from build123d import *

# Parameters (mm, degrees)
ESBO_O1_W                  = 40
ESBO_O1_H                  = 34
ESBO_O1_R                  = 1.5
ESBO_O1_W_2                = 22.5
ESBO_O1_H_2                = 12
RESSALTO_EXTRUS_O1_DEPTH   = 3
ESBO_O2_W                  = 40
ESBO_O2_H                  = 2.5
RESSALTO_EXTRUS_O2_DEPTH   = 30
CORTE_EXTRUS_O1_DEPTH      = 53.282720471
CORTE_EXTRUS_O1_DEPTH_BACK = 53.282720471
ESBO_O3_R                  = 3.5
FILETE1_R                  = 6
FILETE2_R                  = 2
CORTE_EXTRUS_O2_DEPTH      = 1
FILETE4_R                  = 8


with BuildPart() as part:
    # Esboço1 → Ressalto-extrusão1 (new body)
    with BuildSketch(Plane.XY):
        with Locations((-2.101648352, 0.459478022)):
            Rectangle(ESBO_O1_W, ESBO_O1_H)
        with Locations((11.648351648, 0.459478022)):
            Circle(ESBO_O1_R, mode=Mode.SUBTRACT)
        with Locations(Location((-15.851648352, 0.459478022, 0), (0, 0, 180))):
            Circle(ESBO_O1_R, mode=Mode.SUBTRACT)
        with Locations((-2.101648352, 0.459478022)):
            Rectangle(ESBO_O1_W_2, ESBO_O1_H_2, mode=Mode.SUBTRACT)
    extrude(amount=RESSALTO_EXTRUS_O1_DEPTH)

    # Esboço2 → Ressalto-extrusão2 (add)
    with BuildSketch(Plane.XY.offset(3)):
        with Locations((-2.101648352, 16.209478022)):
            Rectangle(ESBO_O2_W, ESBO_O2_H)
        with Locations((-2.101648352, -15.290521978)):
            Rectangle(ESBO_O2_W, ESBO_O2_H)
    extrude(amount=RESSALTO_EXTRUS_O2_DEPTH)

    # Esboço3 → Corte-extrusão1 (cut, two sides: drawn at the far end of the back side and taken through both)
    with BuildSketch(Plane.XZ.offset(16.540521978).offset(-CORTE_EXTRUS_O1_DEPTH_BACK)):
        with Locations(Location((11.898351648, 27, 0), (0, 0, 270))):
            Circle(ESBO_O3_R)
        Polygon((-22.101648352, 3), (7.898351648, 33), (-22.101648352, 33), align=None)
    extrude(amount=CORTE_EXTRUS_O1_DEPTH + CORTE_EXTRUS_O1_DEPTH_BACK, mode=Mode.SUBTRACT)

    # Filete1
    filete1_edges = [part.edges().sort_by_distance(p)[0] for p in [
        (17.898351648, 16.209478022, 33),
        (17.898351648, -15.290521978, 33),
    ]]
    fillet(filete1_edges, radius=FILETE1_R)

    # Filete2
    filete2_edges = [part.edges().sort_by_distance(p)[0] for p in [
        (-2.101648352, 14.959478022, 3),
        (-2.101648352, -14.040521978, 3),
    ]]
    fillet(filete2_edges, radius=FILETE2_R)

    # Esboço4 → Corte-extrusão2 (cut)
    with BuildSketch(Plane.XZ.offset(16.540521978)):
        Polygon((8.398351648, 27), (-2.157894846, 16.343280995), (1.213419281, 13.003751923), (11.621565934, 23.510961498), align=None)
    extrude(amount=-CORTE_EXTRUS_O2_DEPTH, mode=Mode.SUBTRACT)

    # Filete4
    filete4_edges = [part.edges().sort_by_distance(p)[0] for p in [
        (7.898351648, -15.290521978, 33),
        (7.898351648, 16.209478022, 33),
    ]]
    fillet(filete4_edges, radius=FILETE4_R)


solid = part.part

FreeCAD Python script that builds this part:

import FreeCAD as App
import Part
import Sketcher


def edges_at(feature, points):
    """Names of the edges that pass closest to the given points."""
    edges = feature.Shape.Edges
    near = lambda p: min(range(len(edges)), key=lambda i: edges[i].distToShape(Part.Vertex(*p))[0])
    return sorted({f"Edge{near(p) + 1}" for p in points})

doc = App.newDocument("Part")
params = doc.addObject("Spreadsheet::Sheet", "Params")
for row, (alias, value) in enumerate([
    ("sketch1_diameter", "3 mm"),
    ("sketch1_width", "40 mm"),
    ("sketch1_height", "34 mm"),
    ("sketch1_height2", "12 mm"),
    ("sketch1_width2", "22.5 mm"),
    ("pad1_length", "3 mm"),
    ("sketch2_width", "40 mm"),
    ("sketch2_height", "2.5 mm"),
    ("pad2_length", "30 mm"),
    ("sketch3_diameter", "7 mm"),
    ("sketch3_width", "30 mm"),
    ("fillet_radius", "6 mm"),
    ("fillet2_radius", "2 mm"),
    ("sketch4_length", "15 mm"),
    ("sketch4_length2", "4.75 mm"),
    ("pocket2_length", "1 mm"),
    ("fillet3_radius", "8 mm"),
], start=1):
    params.set(f"A{row}", alias)
    params.set(f"B{row}", "=" + value)
    params.setAlias(f"B{row}", alias)

body = doc.addObject("PartDesign::Body", "Body")

sketch1 = body.newObject("Sketcher::SketchObject", "Sketch")
sketch1.AttachmentSupport = (doc.getObject("XY_Plane"), [""])
sketch1.MapMode = "FlatFace"
sketch1.addGeometry([
    Part.LineSegment(App.Vector(-22.101648, 17.459478, 0), App.Vector(-22.101648, -16.540522, 0)),
    Part.LineSegment(App.Vector(-22.101648, -16.540522, 0), App.Vector(17.898352, -16.540522, 0)),
    Part.LineSegment(App.Vector(17.898352, -16.540522, 0), App.Vector(17.898352, 17.459478, 0)),
    Part.LineSegment(App.Vector(17.898352, 17.459478, 0), App.Vector(-22.101648, 17.459478, 0)),
    Part.Circle(App.Vector(-15.851648, 0.459478, 0), App.Vector(0, 0, 1), 1.5),
    Part.LineSegment(App.Vector(9.148352, -5.540522, 0), App.Vector(-13.351648, -5.540522, 0)),
    Part.LineSegment(App.Vector(-13.351648, -5.540522, 0), App.Vector(-13.351648, 6.459478, 0)),
    Part.LineSegment(App.Vector(-13.351648, 6.459478, 0), App.Vector(9.148352, 6.459478, 0)),
    Part.LineSegment(App.Vector(9.148352, 6.459478, 0), App.Vector(9.148352, -5.540522, 0)),
    Part.Circle(App.Vector(11.648352, 0.459478, 0), App.Vector(0, 0, 1), 1.5),
], False)
sketch1.addConstraint([
    Sketcher.Constraint("Coincident", 0, 2, 1, 1),
    Sketcher.Constraint("Coincident", 1, 2, 2, 1),
    Sketcher.Constraint("Coincident", 2, 2, 3, 1),
    Sketcher.Constraint("Coincident", 3, 2, 0, 1),
    Sketcher.Constraint("Coincident", 5, 2, 6, 1),
    Sketcher.Constraint("Coincident", 6, 2, 7, 1),
    Sketcher.Constraint("Coincident", 7, 2, 8, 1),
    Sketcher.Constraint("Coincident", 8, 2, 5, 1),
    Sketcher.Constraint("Vertical", 0),
    Sketcher.Constraint("Horizontal", 1),
    Sketcher.Constraint("Vertical", 2),
    Sketcher.Constraint("Horizontal", 3),
    Sketcher.Constraint("Horizontal", 5),
    Sketcher.Constraint("Vertical", 6),
    Sketcher.Constraint("Horizontal", 7),
    Sketcher.Constraint("Vertical", 8),
    Sketcher.Constraint("Equal", 4, 9),
    Sketcher.Constraint("Horizontal", 4, 3, 9, 3),
    Sketcher.Constraint("Diameter", 4, 3.0),
    Sketcher.Constraint("DistanceX", 1, 1, 1, 2, 40.0),
    Sketcher.Constraint("DistanceY", 0, 2, 0, 1, 34.0),
    Sketcher.Constraint("DistanceY", 6, 1, 6, 2, 12.0),
    Sketcher.Constraint("DistanceX", 5, 2, 5, 1, 22.5),
    Sketcher.Constraint("DistanceY", 0, 2, 4, 3, 17.0),
    Sketcher.Constraint("DistanceY", 5, 2, 4, 3, 6.0),
    Sketcher.Constraint("DistanceX", 5, 2, 9, 3, 25.0),
    Sketcher.Constraint("DistanceX", 4, 3, 9, 3, 27.5),
    Sketcher.Constraint("DistanceX", 0, 2, 4, 3, 6.25),
    Sketcher.Constraint("DistanceX", 4, 3, -1, 1, 15.851648),
    Sketcher.Constraint("DistanceY", -1, 1, 4, 3, 0.459478),
])
sketch1.setExpression("Constraints[18]", "Params.sketch1_diameter")
sketch1.setExpression("Constraints[19]", "Params.sketch1_width")
sketch1.setExpression("Constraints[20]", "Params.sketch1_height")
sketch1.setExpression("Constraints[21]", "Params.sketch1_height2")
sketch1.setExpression("Constraints[22]", "Params.sketch1_width2")
pad1 = body.newObject("PartDesign::Pad", "Pad")
pad1.Profile = sketch1
pad1.setExpression("Length", "Params.pad1_length")

sketch2 = body.newObject("Sketcher::SketchObject", "Sketch001")
sketch2.AttachmentSupport = (doc.getObject("XY_Plane"), [""])
sketch2.MapMode = "FlatFace"
sketch2.AttachmentOffset = App.Placement(App.Vector(0, 0, 3), App.Rotation())
sketch2.addGeometry([
    Part.LineSegment(App.Vector(-22.101648, 17.459478, 0), App.Vector(-22.101648, 14.959478, 0)),
    Part.LineSegment(App.Vector(-22.101648, 14.959478, 0), App.Vector(17.898352, 14.959478, 0)),
    Part.LineSegment(App.Vector(17.898352, 14.959478, 0), App.Vector(17.898352, 17.459478, 0)),
    Part.LineSegment(App.Vector(17.898352, 17.459478, 0), App.Vector(-22.101648, 17.459478, 0)),
    Part.LineSegment(App.Vector(-22.101648, -14.040522, 0), App.Vector(-22.101648, -16.540522, 0)),
    Part.LineSegment(App.Vector(-22.101648, -16.540522, 0), App.Vector(17.898352, -16.540522, 0)),
    Part.LineSegment(App.Vector(17.898352, -16.540522, 0), App.Vector(17.898352, -14.040522, 0)),
    Part.LineSegment(App.Vector(17.898352, -14.040522, 0), App.Vector(-22.101648, -14.040522, 0)),
], False)
sketch2.addConstraint([
    Sketcher.Constraint("Coincident", 0, 2, 1, 1),
    Sketcher.Constraint("Coincident", 1, 2, 2, 1),
    Sketcher.Constraint("Coincident", 2, 2, 3, 1),
    Sketcher.Constraint("Coincident", 3, 2, 0, 1),
    Sketcher.Constraint("Coincident", 4, 2, 5, 1),
    Sketcher.Constraint("Coincident", 5, 2, 6, 1),
    Sketcher.Constraint("Coincident", 6, 2, 7, 1),
    Sketcher.Constraint("Coincident", 7, 2, 4, 1),
    Sketcher.Constraint("Vertical", 0),
    Sketcher.Constraint("Horizontal", 1),
    Sketcher.Constraint("Vertical", 2),
    Sketcher.Constraint("Horizontal", 3),
    Sketcher.Constraint("Vertical", 4),
    Sketcher.Constraint("Horizontal", 5),
    Sketcher.Constraint("Vertical", 6),
    Sketcher.Constraint("Horizontal", 7),
    Sketcher.Constraint("Vertical", 3, 2, 4, 2),
    Sketcher.Constraint("Vertical", 2, 2, 5, 2),
    Sketcher.Constraint("Equal", 2, 4),
    Sketcher.Constraint("DistanceX", 1, 1, 1, 2, 40.0),
    Sketcher.Constraint("DistanceY", 0, 2, 0, 1, 2.5),
    Sketcher.Constraint("DistanceY", 4, 2, 3, 2, 34.0),
    Sketcher.Constraint("DistanceX", 0, 2, -1, 1, 22.101648),
    Sketcher.Constraint("DistanceY", -1, 1, 0, 2, 14.959478),
])
sketch2.setExpression("Constraints[19]", "Params.sketch2_width")
sketch2.setExpression("Constraints[20]", "Params.sketch2_height")
pad2 = body.newObject("PartDesign::Pad", "Pad001")
pad2.Profile = sketch2
pad2.setExpression("Length", "Params.pad2_length")

sketch3 = body.newObject("Sketcher::SketchObject", "Sketch002")
sketch3.AttachmentSupport = (doc.getObject("XZ_Plane"), [""])
sketch3.MapMode = "FlatFace"
sketch3.AttachmentOffset = App.Placement(App.Vector(0, 0, 16.540522), App.Rotation())
sketch3.addGeometry([
    Part.Circle(App.Vector(11.898352, 27, 0), App.Vector(0, 0, 1), 3.5),
    Part.LineSegment(App.Vector(-22.101648, 3, 0), App.Vector(7.898352, 33, 0)),
    Part.LineSegment(App.Vector(7.898352, 33, 0), App.Vector(-22.101648, 33, 0)),
    Part.LineSegment(App.Vector(-22.101648, 33, 0), App.Vector(-22.101648, 3, 0)),
], False)
sketch3.addConstraint([
    Sketcher.Constraint("Coincident", 1, 2, 2, 1),
    Sketcher.Constraint("Coincident", 2, 2, 3, 1),
    Sketcher.Constraint("Coincident", 3, 2, 1, 1),
    Sketcher.Constraint("Horizontal", 2),
    Sketcher.Constraint("Vertical", 3),
    Sketcher.Constraint("Equal", 2, 3),
    Sketcher.Constraint("Diameter", 0, 7.0),
    Sketcher.Constraint("DistanceX", 2, 2, 2, 1, 30.0),
    Sketcher.Constraint("DistanceY", -1, 1, 0, 3, 27.0),
    Sketcher.Constraint("DistanceY", -1, 1, 1, 2, 33.0),
    Sketcher.Constraint("DistanceX", 1, 2, 0, 3, 4.0),
    Sketcher.Constraint("DistanceX", -1, 1, 0, 3, 11.898352),
])
sketch3.setExpression("Constraints[6]", "Params.sketch3_diameter")
sketch3.setExpression("Constraints[7]", "Params.sketch3_width")
pocket1 = body.newObject("PartDesign::Pocket", "Pocket")
pocket1.Profile = sketch3
pocket1.Type = "ThroughAll"
pocket1.Midplane = True
doc.recompute()

fillet = body.newObject("PartDesign::Fillet", "Fillet")
fillet.Base = (pocket1, edges_at(pocket1, [(17.898, 16.209, 33), (17.898, -15.291, 33)]))
fillet.setExpression("Radius", "Params.fillet_radius")
doc.recompute()

fillet2 = body.newObject("PartDesign::Fillet", "Fillet001")
fillet2.Base = (fillet, edges_at(fillet, [(-2.102, 14.959, 3), (-2.102, -14.041, 3)]))
fillet2.setExpression("Radius", "Params.fillet2_radius")

sketch4 = body.newObject("Sketcher::SketchObject", "Sketch003")
sketch4.AttachmentSupport = (doc.getObject("XZ_Plane"), [""])
sketch4.MapMode = "FlatFace"
sketch4.AttachmentOffset = App.Placement(App.Vector(0, 0, 16.540522), App.Rotation())
sketch4.addGeometry([
    Part.LineSegment(App.Vector(8.398352, 27, 0), App.Vector(-2.157895, 16.343281, 0)),
    Part.LineSegment(App.Vector(-2.157895, 16.343281, 0), App.Vector(1.213419, 13.003752, 0)),
    Part.LineSegment(App.Vector(1.213419, 13.003752, 0), App.Vector(11.621566, 23.510961, 0)),
    Part.LineSegment(App.Vector(11.621566, 23.510961, 0), App.Vector(8.398352, 27, 0)),
], False)
sketch4.addConstraint([
    Sketcher.Constraint("Coincident", 0, 2, 1, 1),
    Sketcher.Constraint("Coincident", 1, 2, 2, 1),
    Sketcher.Constraint("Coincident", 2, 2, 3, 1),
    Sketcher.Constraint("Coincident", 3, 2, 0, 1),
    Sketcher.Constraint("Perpendicular", 0, 1),
    Sketcher.Constraint("Perpendicular", 1, 2),
    Sketcher.Constraint("Distance", 0, 15.0),
    Sketcher.Constraint("DistanceY", -1, 1, 3, 2, 27.0),
    Sketcher.Constraint("Distance", 3, 4.75),
    Sketcher.Constraint("DistanceY", -1, 1, 0, 2, 16.343281),
    Sketcher.Constraint("DistanceX", -1, 1, 1, 2, 1.213419),
    Sketcher.Constraint("DistanceY", -1, 1, 1, 2, 13.003752),
])
sketch4.setExpression("Constraints[6]", "Params.sketch4_length")
sketch4.setExpression("Constraints[8]", "Params.sketch4_length2")
pocket2 = body.newObject("PartDesign::Pocket", "Pocket001")
pocket2.Profile = sketch4
pocket2.setExpression("Length", "Params.pocket2_length")
doc.recompute()

fillet3 = body.newObject("PartDesign::Fillet", "Fillet002")
fillet3.Base = (pocket2, edges_at(pocket2, [(7.898, -15.291, 33), (7.898, 16.209, 33)]))
fillet3.setExpression("Radius", "Params.fillet3_radius")

doc.recompute()
